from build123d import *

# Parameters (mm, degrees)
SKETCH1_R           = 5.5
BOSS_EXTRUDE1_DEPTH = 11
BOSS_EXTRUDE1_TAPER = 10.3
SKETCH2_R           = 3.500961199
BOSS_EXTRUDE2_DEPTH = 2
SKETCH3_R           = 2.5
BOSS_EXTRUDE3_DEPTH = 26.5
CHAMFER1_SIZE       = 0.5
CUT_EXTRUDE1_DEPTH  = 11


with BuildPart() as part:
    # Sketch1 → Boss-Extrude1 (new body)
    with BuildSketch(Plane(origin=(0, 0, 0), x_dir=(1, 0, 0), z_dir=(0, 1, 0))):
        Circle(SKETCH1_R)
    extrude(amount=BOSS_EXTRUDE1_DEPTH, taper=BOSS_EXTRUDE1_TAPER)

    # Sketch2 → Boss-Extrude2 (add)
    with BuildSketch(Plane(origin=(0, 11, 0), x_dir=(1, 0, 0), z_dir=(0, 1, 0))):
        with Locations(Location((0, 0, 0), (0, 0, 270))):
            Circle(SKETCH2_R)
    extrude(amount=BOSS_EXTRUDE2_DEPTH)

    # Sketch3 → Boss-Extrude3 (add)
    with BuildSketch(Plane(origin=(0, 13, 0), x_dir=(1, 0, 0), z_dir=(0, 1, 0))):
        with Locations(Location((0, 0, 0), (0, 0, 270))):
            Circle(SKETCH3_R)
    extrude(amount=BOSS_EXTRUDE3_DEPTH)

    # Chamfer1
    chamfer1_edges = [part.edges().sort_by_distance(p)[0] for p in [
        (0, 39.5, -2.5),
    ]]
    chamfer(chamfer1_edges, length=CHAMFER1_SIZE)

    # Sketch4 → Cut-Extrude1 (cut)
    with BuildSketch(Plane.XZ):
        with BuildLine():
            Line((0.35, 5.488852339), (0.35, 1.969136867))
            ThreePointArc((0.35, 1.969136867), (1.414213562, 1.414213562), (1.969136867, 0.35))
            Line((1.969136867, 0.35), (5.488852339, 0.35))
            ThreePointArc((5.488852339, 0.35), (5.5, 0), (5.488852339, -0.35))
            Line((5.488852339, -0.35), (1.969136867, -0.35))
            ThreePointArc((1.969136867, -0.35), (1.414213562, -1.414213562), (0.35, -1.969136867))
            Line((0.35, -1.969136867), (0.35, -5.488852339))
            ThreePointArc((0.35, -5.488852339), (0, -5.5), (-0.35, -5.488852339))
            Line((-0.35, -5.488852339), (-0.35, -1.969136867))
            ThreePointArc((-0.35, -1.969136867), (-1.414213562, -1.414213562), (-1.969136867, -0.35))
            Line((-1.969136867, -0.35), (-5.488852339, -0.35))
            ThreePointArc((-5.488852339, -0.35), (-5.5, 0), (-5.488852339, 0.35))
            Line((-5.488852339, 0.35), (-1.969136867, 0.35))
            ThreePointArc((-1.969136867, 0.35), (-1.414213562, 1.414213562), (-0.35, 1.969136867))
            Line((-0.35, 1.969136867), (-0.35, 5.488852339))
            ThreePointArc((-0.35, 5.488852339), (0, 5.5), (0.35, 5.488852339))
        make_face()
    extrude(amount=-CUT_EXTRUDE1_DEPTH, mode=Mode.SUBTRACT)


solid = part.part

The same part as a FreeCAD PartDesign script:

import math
import FreeCAD as App
import Part
import Sketcher
Q = App.Units.Quantity


def edges_at(feature, points):
    """Names of the edges that pass closest to the given points."""
    edges = feature.Shape.Edges
    near = lambda p: min(range(len(edges)), key=lambda i: edges[i].distToShape(Part.Vertex(*p))[0])
    return sorted({f"Edge{near(p) + 1}" for p in points})

doc = App.newDocument("Part")
params = doc.addObject("Spreadsheet::Sheet", "Params")
for row, (alias, value) in enumerate([
    ("sketch1_diameter", "11 mm"),
    ("pad1_length", "11 mm"),
    ("pad1_taper", "-10.3 deg"),
    ("pad2_length", "2 mm"),
    ("sketch3_diameter", "5 mm"),
    ("pad3_length", "26.5 mm"),
    ("chamfer_size", "0.5 mm"),
    ("sketch4_radius", "2 mm"),
    ("sketch4_radius2", "5.5 mm"),
    ("pocket1_length", "11 mm"),
], start=1):
    params.set(f"A{row}", alias)
    params.set(f"B{row}", "=" + value)
    params.setAlias(f"B{row}", alias)

body = doc.addObject("PartDesign::Body", "Body")

# Sketch on XZ plane
sketch1 = body.newObject("Sketcher::SketchObject", "Sketch")
sketch1.AttachmentSupport = (doc.getObject("XZ_Plane"), [""])
sketch1.MapMode = "FlatFace"
sketch1.addGeometry(Part.Circle(App.Vector(0, 0, 0), App.Vector(0, 0, 1), 6), False)
sketch1.addConstraint([
    Sketcher.Constraint("Coincident", 0, 3, -1, 1),
    Sketcher.Constraint("Diameter", 0, Q("11 mm")),
])
sketch1.setExpression("Constraints[1]", "Params.sketch1_diameter")
pad1 = body.newObject("PartDesign::Pad", "Pad")
pad1.Profile = sketch1
pad1.setExpression("Length", "Params.pad1_length")
pad1.Reversed = True
pad1.setExpression("TaperAngle", "Params.pad1_taper")

# Sketch on XZ plane
sketch2 = body.newObject("Sketcher::SketchObject", "Sketch001")
sketch2.AttachmentSupport = (doc.getObject("XZ_Plane"), [""])
sketch2.MapMode = "FlatFace"
sketch2.AttachmentOffset = App.Placement(App.Vector(0, 0, -11), App.Rotation())
sketch2.addGeometry(Part.Circle(App.Vector(0, 0, 0), App.Vector(0, 0, 1), 3.5), False)
sketch2.addConstraint([
    Sketcher.Constraint("Coincident", 0, 3, -1, 1),
    Sketcher.Constraint("Diameter", 0, Q("7.001922 mm")),
])
pad2 = body.newObject("PartDesign::Pad", "Pad001")
pad2.Profile = sketch2
pad2.setExpression("Length", "Params.pad2_length")
pad2.Reversed = True

# Sketch on XZ plane
sketch3 = body.newObject("Sketcher::SketchObject", "Sketch002")
sketch3.AttachmentSupport = (doc.getObject("XZ_Plane"), [""])
sketch3.MapMode = "FlatFace"
sketch3.AttachmentOffset = App.Placement(App.Vector(0, 0, -13), App.Rotation())
sketch3.addGeometry(Part.Circle(App.Vector(0, 0, 0), App.Vector(0, 0, 1), 2.5), False)
sketch3.addConstraint([
    Sketcher.Constraint("Coincident", 0, 3, -1, 1),
    Sketcher.Constraint("Diameter", 0, Q("5 mm")),
])
sketch3.setExpression("Constraints[1]", "Params.sketch3_diameter")
pad3 = body.newObject("PartDesign::Pad", "Pad002")
pad3.Profile = sketch3
pad3.setExpression("Length", "Params.pad3_length")
pad3.Reversed = True
doc.recompute()

chamfer = body.newObject("PartDesign::Chamfer", "Chamfer")
chamfer.Base = (pad3, edges_at(pad3, [(0, 39.5, -2.5)]))
chamfer.setExpression("Size", "Params.chamfer_size")

# Sketch on XZ plane
sketch4 = body.newObject("Sketcher::SketchObject", "Sketch003")
sketch4.AttachmentSupport = (doc.getObject("XZ_Plane"), [""])
sketch4.MapMode = "FlatFace"
sketch4.addGeometry([
    Part.LineSegment(App.Vector(0.3, 2, 0), App.Vector(0.3, 5.5, 0)),  # 0
    Part.ArcOfCircle(Part.Circle(App.Vector(0, 0, 0), App.Vector(0, 0, 1), 5.5), math.radians(86.35), math.radians(93.65)),  # 1
    Part.LineSegment(App.Vector(-0.3, 5.5, 0), App.Vector(-0.3, 2, 0)),  # 2
    Part.ArcOfCircle(Part.Circle(App.Vector(0, 0, 0), App.Vector(0, 0, 1), 2), math.radians(100), math.radians(170)),  # 3
    Part.LineSegment(App.Vector(-2, 0.3, 0), App.Vector(-5.5, 0.3, 0)),  # 4
    Part.ArcOfCircle(Part.Circle(App.Vector(0, 0, 0), App.Vector(0, 0, 1), 5.5), math.radians(176.35), math.radians(183.65)),  # 5
    Part.LineSegment(App.Vector(-5.5, -0.3, 0), App.Vector(-2, -0.3, 0)),  # 6
    Part.ArcOfCircle(Part.Circle(App.Vector(0, 0, 0), App.Vector(0, 0, 1), 2), math.radians(-170), math.radians(-100)),  # 7
    Part.LineSegment(App.Vector(-0.3, -2, 0), App.Vector(-0.3, -5.5, 0)),  # 8
    Part.ArcOfCircle(Part.Circle(App.Vector(0, 0, 0), App.Vector(0, 0, 1), 5.5), math.radians(-93.65), math.radians(-86.35)),  # 9
    Part.LineSegment(App.Vector(0.3, -5.5, 0), App.Vector(0.3, -2, 0)),  # 10
    Part.ArcOfCircle(Part.Circle(App.Vector(0, 0, 0), App.Vector(0, 0, 1), 2), math.radians(-80), math.radians(-10)),  # 11
    Part.LineSegment(App.Vector(2, -0.3, 0), App.Vector(5.5, -0.3, 0)),  # 12
    Part.ArcOfCircle(Part.Circle(App.Vector(0, 0, 0), App.Vector(0, 0, 1), 5.5), math.radians(-3.65), math.radians(3.65)),  # 13
    Part.LineSegment(App.Vector(5.5, 0.3, 0), App.Vector(2, 0.3, 0)),  # 14
    Part.ArcOfCircle(Part.Circle(App.Vector(0, 0, 0), App.Vector(0, 0, 1), 2), math.radians(10), math.radians(80)),  # 15
], False)
sketch4.addConstraint([
    Sketcher.Constraint("Coincident", 0, 2, 1, 1),
    Sketcher.Constraint("Coincident", 1, 2, 2, 1),
    Sketcher.Constraint("Coincident", 2, 2, 3, 1),
    Sketcher.Constraint("Coincident", 3, 2, 4, 1),
    Sketcher.Constraint("Coincident", 4, 2, 5, 1),
    Sketcher.Constraint("Coincident", 5, 2, 6, 1),
    Sketcher.Constraint("Coincident", 6, 2, 7, 1),
    Sketcher.Constraint("Coincident", 7, 2, 8, 1),
    Sketcher.Constraint("Coincident", 8, 2, 9, 1),
    Sketcher.Constraint("Coincident", 9, 2, 10, 1),
    Sketcher.Constraint("Coincident", 10, 2, 11, 1),
    Sketcher.Constraint("Coincident", 11, 2, 12, 1),
    Sketcher.Constraint("Coincident", 12, 2, 13, 1),
    Sketcher.Constraint("Coincident", 13, 2, 14, 1),
    Sketcher.Constraint("Coincident", 14, 2, 15, 1),
    Sketcher.Constraint("Coincident", 15, 2, 0, 1),
    Sketcher.Constraint("Vertical", 0),
    Sketcher.Constraint("Vertical", 2),
    Sketcher.Constraint("Horizontal", 4),
    Sketcher.Constraint("Horizontal", 6),
    Sketcher.Constraint("Vertical", 8),
    Sketcher.Constraint("Vertical", 10),
    Sketcher.Constraint("Horizontal", 12),
    Sketcher.Constraint("Horizontal", 14),
    Sketcher.Constraint("Coincident", 1, 3, -1, 1),
    Sketcher.Constraint("Coincident", 3, 3, -1, 1),
    Sketcher.Constraint("Coincident", 5, 3, -1, 1),
    Sketcher.Constraint("Coincident", 7, 3, -1, 1),
    Sketcher.Constraint("Coincident", 9, 3, -1, 1),
    Sketcher.Constraint("Coincident", 11, 3, -1, 1),
    Sketcher.Constraint("Coincident", 13, 3, -1, 1),
    Sketcher.Constraint("Coincident", 15, 3, -1, 1),
    Sketcher.Constraint("Equal", 1, 5),
    Sketcher.Constraint("Equal", 3, 7),
    Sketcher.Constraint("Equal", 5, 9),
    Sketcher.Constraint("Equal", 7, 11),
    Sketcher.Constraint("Equal", 9, 13),
    Sketcher.Constraint("Equal", 11, 15),
    Sketcher.Constraint("Horizontal", 0, 2, 1, 2),
    Sketcher.Constraint("Horizontal", 8, 2, 9, 2),
    Sketcher.Constraint("Horizontal", 6, 2, 11, 2),
    Sketcher.Constraint("Horizontal", 4, 2, 13, 2),
    Sketcher.Constraint("Vertical", 4, 2, 5, 2),
    Sketcher.Constraint("Vertical", 2, 2, 7, 2),
    Sketcher.Constraint("Equal", 14, 0),
    Sketcher.Constraint("Radius", 3, Q("2 mm")),
    Sketcher.Constraint("Radius", 1, Q("5.5 mm")),
    Sketcher.Constraint("DistanceX", 1, 2, 0, 2, Q("0.7 mm")),
])
sketch4.setExpression("Constraints[45]", "Params.sketch4_radius")
sketch4.setExpression("Constraints[46]", "Params.sketch4_radius2")
pocket1 = body.newObject("PartDesign::Pocket", "Pocket")
pocket1.Profile = sketch4
pocket1.setExpression("Length", "Params.pocket1_length")

doc.recompute()
